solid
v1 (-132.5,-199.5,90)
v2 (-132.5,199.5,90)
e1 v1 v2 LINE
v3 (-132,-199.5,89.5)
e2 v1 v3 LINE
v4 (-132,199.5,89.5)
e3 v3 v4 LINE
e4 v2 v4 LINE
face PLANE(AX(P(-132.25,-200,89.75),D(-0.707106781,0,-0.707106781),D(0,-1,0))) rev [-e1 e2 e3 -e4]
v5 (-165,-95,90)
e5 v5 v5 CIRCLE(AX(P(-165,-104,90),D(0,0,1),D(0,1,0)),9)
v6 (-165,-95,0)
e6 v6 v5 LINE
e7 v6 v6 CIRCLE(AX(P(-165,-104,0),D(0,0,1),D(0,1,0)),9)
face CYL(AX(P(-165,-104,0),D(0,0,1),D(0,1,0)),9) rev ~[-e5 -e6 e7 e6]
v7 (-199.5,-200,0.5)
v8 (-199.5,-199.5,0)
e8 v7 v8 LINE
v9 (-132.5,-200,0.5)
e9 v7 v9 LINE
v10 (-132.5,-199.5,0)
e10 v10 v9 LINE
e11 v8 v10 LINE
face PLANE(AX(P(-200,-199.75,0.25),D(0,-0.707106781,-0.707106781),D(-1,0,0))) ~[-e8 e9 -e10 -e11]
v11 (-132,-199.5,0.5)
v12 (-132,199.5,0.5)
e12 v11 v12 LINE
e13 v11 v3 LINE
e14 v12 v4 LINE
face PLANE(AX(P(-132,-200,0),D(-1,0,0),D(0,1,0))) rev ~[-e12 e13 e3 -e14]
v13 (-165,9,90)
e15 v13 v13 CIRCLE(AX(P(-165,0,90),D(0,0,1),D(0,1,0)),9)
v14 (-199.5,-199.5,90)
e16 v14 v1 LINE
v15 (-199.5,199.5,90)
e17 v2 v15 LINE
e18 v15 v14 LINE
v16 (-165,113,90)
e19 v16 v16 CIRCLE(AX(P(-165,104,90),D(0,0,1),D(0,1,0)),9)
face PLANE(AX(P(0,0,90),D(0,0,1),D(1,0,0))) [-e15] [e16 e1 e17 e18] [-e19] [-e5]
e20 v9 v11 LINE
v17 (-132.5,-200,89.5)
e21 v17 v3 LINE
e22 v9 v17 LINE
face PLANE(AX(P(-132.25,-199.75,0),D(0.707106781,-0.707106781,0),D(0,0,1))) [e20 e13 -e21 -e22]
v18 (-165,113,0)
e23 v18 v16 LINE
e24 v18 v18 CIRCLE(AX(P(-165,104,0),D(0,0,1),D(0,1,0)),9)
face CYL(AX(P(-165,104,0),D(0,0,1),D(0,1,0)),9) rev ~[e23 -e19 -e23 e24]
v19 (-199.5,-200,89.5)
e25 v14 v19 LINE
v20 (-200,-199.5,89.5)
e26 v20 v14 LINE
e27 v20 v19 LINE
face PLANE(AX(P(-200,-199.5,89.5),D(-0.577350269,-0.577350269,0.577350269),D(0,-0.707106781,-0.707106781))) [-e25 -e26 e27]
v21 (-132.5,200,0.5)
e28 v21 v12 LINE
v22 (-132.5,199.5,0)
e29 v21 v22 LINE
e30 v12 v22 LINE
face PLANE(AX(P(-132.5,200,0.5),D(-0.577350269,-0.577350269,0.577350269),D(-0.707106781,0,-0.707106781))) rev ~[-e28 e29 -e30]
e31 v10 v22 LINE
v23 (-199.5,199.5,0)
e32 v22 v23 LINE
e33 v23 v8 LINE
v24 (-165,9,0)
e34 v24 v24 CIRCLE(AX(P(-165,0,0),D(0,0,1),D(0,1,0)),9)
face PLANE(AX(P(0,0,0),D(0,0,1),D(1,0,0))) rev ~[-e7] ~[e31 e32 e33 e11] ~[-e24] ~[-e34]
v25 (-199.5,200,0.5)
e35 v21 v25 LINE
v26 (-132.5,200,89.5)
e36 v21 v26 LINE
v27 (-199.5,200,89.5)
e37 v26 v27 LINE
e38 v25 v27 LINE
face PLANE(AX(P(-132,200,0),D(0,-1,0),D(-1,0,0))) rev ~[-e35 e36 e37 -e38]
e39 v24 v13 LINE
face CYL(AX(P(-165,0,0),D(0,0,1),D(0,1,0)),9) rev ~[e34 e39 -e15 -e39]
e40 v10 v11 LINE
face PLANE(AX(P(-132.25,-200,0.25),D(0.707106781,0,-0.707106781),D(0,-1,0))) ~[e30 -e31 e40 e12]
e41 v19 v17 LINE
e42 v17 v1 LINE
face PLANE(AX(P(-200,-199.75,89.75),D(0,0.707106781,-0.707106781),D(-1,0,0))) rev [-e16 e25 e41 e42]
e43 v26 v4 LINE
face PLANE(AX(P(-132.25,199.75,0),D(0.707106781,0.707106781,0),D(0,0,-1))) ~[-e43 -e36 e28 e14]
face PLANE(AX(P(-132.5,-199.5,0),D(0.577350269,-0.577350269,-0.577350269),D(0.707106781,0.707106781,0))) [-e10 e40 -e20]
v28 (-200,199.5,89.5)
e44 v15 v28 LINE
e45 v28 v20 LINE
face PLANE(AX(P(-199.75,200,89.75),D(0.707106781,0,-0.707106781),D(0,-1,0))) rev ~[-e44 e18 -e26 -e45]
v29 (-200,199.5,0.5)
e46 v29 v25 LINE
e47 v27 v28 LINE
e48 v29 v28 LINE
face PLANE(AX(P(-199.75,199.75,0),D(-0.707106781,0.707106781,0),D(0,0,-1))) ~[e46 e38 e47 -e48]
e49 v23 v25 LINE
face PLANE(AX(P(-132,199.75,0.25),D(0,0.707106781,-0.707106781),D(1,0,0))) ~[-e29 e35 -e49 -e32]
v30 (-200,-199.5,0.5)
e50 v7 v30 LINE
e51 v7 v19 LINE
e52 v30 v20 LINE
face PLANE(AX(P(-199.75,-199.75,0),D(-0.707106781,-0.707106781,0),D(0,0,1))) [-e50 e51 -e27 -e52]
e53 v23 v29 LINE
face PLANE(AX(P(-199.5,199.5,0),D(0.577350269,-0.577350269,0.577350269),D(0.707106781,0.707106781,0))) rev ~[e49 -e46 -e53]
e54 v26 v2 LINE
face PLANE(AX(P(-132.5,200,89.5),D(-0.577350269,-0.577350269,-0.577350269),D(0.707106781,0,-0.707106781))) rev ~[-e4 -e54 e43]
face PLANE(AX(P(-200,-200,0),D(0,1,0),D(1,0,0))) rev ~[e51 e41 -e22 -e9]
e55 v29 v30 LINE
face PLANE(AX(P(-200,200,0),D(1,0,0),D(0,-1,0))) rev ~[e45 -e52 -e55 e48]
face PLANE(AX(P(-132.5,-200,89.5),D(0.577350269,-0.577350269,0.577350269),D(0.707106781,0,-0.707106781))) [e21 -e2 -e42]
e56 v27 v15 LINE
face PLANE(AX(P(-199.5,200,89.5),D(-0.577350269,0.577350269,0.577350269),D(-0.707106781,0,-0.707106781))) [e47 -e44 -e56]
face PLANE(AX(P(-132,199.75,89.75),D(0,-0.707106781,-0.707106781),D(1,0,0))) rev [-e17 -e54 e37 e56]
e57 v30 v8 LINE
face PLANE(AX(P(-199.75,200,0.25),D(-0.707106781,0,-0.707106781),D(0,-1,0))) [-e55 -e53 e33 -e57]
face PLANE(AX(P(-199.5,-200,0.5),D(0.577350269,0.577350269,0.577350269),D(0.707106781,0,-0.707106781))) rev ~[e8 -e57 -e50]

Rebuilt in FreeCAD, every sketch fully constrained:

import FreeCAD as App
import Part
import Sketcher


def edges_at(feature, points):
    """Names of the edges that pass closest to the given points."""
    edges = feature.Shape.Edges
    near = lambda p: min(range(len(edges)), key=lambda i: edges[i].distToShape(Part.Vertex(*p))[0])
    return sorted({f"Edge{near(p) + 1}" for p in points})

doc = App.newDocument("Part")
body = doc.addObject("PartDesign::Body", "Body")

sketch1 = doc.addObject("Sketcher::SketchObject", "Sketch")
body.addObject(sketch1)
sketch1.AttachmentSupport = (doc.XY_Plane, [""])
sketch1.MapMode = "FlatFace"
sketch1.addGeometry(Part.LineSegment(App.Vector(-132, -200, 0), App.Vector(-132, 200, 0)), False)
sketch1.addGeometry(Part.LineSegment(App.Vector(-132, 200, 0), App.Vector(-200, 200, 0)), False)
sketch1.addGeometry(Part.LineSegment(App.Vector(-200, 200, 0), App.Vector(-200, -200, 0)), False)
sketch1.addGeometry(Part.LineSegment(App.Vector(-200, -200, 0), App.Vector(-132, -200, 0)), False)
sketch1.addConstraint(Sketcher.Constraint("Coincident", 0, 2, 1, 1))
sketch1.addConstraint(Sketcher.Constraint("Coincident", 1, 2, 2, 1))
sketch1.addConstraint(Sketcher.Constraint("Coincident", 2, 2, 3, 1))
sketch1.addConstraint(Sketcher.Constraint("Coincident", 3, 2, 0, 1))
sketch1.addConstraint(Sketcher.Constraint("Vertical", 0))
sketch1.addConstraint(Sketcher.Constraint("Horizontal", 1))
sketch1.addConstraint(Sketcher.Constraint("Vertical", 2))
sketch1.addConstraint(Sketcher.Constraint("Horizontal", 3))
sketch1.addConstraint(Sketcher.Constraint("DistanceX", 1, 2, 1, 1, 68.0))
sketch1.addConstraint(Sketcher.Constraint("DistanceY", 0, 1, 0, 2, 400.0))
sketch1.addConstraint(Sketcher.Constraint("DistanceY", -1, 1, 0, 2, 200.0))
sketch1.addConstraint(Sketcher.Constraint("DistanceX", 1, 2, -1, 1, 200.0))
pad1 = doc.addObject("PartDesign::Pad", "Pad")
body.addObject(pad1)
pad1.Profile = sketch1
pad1.Length = 90

sketch2 = doc.addObject("Sketcher::SketchObject", "Sketch001")
body.addObject(sketch2)
sketch2.AttachmentSupport = (doc.XY_Plane, [""])
sketch2.MapMode = "FlatFace"
sketch2.addGeometry(Part.Circle(App.Vector(-165, 104, 0), App.Vector(0, 0, 1), 9), False)
sketch2.addConstraint(Sketcher.Constraint("Diameter", 0, 18.0))
sketch2.addConstraint(Sketcher.Constraint("DistanceX", 0, 3, -1, 1, 165.0))
sketch2.addConstraint(Sketcher.Constraint("DistanceY", -1, 1, 0, 3, 104.0))
doc.recompute()
hole = doc.addObject("PartDesign::Hole", "Hole")
body.addObject(hole)
hole.Profile = sketch2
hole.ThreadType = "None"
hole.Diameter = 18
hole.DepthType = "Dimension"
hole.Depth = 90
hole.DrillPoint = "Flat"
hole.Reversed = True
doc.recompute()

linearpattern = doc.addObject("PartDesign::LinearPattern", "LinearPattern")
body.addObject(linearpattern)
linearpattern.Originals = [hole]
linearpattern.Direction = (doc.Y_Axis, [""])
linearpattern.Mode = "offset"
linearpattern.Offset = 104
linearpattern.Occurrences = 3
linearpattern.Reversed = True
body.Tip = linearpattern
doc.recompute()

chamfer = doc.addObject("PartDesign::Chamfer", "Chamfer")
body.addObject(chamfer)
chamfer.Base = (linearpattern, edges_at(linearpattern, [
    (-132, 0, 90),
    (-166, -200, 90),
    (-200, 0, 90),
    (-166, 200, 90),
    (-200, 200, 45),
    (-200, 0, 0),
    (-200, -200, 45),
    (-132, -200, 45),
    (-166, -200, 0),
    (-132, 0, 0),
    (-132, 200, 45),
    (-166, 200, 0),
]))
chamfer.Size = 0.5

doc.recompute()
